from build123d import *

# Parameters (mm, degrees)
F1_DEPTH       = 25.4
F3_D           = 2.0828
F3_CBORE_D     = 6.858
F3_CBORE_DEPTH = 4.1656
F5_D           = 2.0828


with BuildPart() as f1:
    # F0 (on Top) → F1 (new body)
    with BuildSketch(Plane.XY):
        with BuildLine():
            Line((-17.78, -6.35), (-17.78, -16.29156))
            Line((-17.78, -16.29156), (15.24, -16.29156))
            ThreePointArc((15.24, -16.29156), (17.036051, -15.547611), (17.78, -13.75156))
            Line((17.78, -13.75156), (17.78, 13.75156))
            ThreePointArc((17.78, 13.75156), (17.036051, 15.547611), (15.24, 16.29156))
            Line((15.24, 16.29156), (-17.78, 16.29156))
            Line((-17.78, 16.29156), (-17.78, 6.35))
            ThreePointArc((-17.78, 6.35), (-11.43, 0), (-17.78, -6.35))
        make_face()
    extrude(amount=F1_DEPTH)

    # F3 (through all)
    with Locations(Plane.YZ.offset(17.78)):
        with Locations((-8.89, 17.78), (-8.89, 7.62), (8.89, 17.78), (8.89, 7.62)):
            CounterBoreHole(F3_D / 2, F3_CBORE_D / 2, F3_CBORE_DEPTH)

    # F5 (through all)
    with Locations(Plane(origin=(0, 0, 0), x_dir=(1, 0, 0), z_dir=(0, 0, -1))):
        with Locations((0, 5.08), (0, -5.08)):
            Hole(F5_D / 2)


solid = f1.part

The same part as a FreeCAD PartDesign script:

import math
import FreeCAD as App
import Part
import Sketcher
from FreeCAD import Vector
Q = App.Units.Quantity

doc = App.newDocument("Part")
body = doc.addObject("PartDesign::Body", "Body")

# Sketch on XY plane
sketch1 = body.newObject("Sketcher::SketchObject", "Sketch")
sketch1.AttachmentSupport = (doc.getObject("XY_Plane"), [""])
sketch1.MapMode = "FlatFace"
sketch1.addGeometry(Part.LineSegment(Vector(-17.8, -6.3, 0), Vector(-17.8, -16.3, 0)), False)
sketch1.addGeometry(Part.LineSegment(Vector(-17.8, -16.3, 0), Vector(15.2, -16.3, 0)), False)
sketch1.addGeometry(Part.ArcOfCircle(Part.Circle(Vector(15.2, -13.8, 0), Vector(0, 0, 1), 2.5), math.radians(-90), math.radians(0)), False)
sketch1.addGeometry(Part.LineSegment(Vector(17.8, -13.8, 0), Vector(17.8, 13.8, 0)), False)
sketch1.addGeometry(Part.ArcOfCircle(Part.Circle(Vector(15.2, 13.8, 0), Vector(0, 0, 1), 2.5), math.radians(0), math.radians(90)), False)
sketch1.addGeometry(Part.LineSegment(Vector(15.2, 16.3, 0), Vector(-17.8, 16.3, 0)), False)
sketch1.addGeometry(Part.LineSegment(Vector(-17.8, 16.3, 0), Vector(-17.8, 6.3, 0)), False)
sketch1.addGeometry(Part.ArcOfCircle(Part.Circle(Vector(-17.8, 0, 0), Vector(0, 0, 1), 6.3), math.radians(-90), math.radians(90)), False)
sketch1.addConstraint(Sketcher.Constraint("Coincident", 0, 2, 1, 1))
sketch1.addConstraint(Sketcher.Constraint("Tangent", 1, 2, 2, 1))
sketch1.addConstraint(Sketcher.Constraint("Tangent", 2, 2, 3, 1))
sketch1.addConstraint(Sketcher.Constraint("Tangent", 3, 2, 4, 1))
sketch1.addConstraint(Sketcher.Constraint("Tangent", 4, 2, 5, 1))
sketch1.addConstraint(Sketcher.Constraint("Coincident", 5, 2, 6, 1))
sketch1.addConstraint(Sketcher.Constraint("Coincident", 6, 2, 7, 2))
sketch1.addConstraint(Sketcher.Constraint("Coincident", 7, 1, 0, 1))
sketch1.addConstraint(Sketcher.Constraint("Vertical", 0))
sketch1.addConstraint(Sketcher.Constraint("Horizontal", 1))
sketch1.addConstraint(Sketcher.Constraint("Vertical", 3))
sketch1.addConstraint(Sketcher.Constraint("Horizontal", 5))
sketch1.addConstraint(Sketcher.Constraint("Vertical", 6))
sketch1.addConstraint(Sketcher.Constraint("Equal", 2, 4))
sketch1.addConstraint(Sketcher.Constraint("Symmetric", 0, 2, 5, 2, -1))
sketch1.addConstraint(Sketcher.Constraint("PointOnObject", 7, 3, -1))
sketch1.addConstraint(Sketcher.Constraint("Vertical", 7, 3, 0, 2))
sketch1.addConstraint(Sketcher.Constraint("Radius", 2, Q("0.1 in")))
sketch1.addConstraint(Sketcher.Constraint("Radius", 7, Q("0.25 in")))
sketch1.addConstraint(Sketcher.Constraint("DistanceX", 1, 1, 1, 2, Q("1.3 in")))
sketch1.addConstraint(Sketcher.Constraint("DistanceX", -1, 1, 2, 3, Q("0.6 in")))
sketch1.addConstraint(Sketcher.Constraint("DistanceY", 0, 2, 0, 1, Q("0.3914 in")))
pad1 = body.newObject("PartDesign::Pad", "Pad")
pad1.Profile = sketch1
pad1.Length = Q("1 in")

# Sketch on YZ plane
sketch2 = body.newObject("Sketcher::SketchObject", "Sketch001")
sketch2.AttachmentSupport = (doc.getObject("YZ_Plane"), [""])
sketch2.MapMode = "FlatFace"
sketch2.AttachmentOffset = App.Placement(Vector(0, 0, 0.7 * 25.4), App.Rotation())
sketch2.addGeometry(Part.Circle(Vector(-8.9, 17.8, 0), Vector(0, 0, 1), 1), False)
sketch2.addGeometry(Part.Circle(Vector(-8.9, 7.6, 0), Vector(0, 0, 1), 1), False)
sketch2.addGeometry(Part.Circle(Vector(8.9, 17.8, 0), Vector(0, 0, 1), 1), False)
sketch2.addGeometry(Part.Circle(Vector(8.9, 7.6, 0), Vector(0, 0, 1), 1), False)
sketch2.addConstraint(Sketcher.Constraint("Equal", 0, 1))
sketch2.addConstraint(Sketcher.Constraint("Equal", 1, 2))
sketch2.addConstraint(Sketcher.Constraint("Equal", 2, 3))
sketch2.addConstraint(Sketcher.Constraint("Symmetric", 0, 3, 2, 3, -2))
sketch2.addConstraint(Sketcher.Constraint("Symmetric", 1, 3, 3, 3, -2))
sketch2.addConstraint(Sketcher.Constraint("Vertical", 0, 3, 1, 3))
sketch2.addConstraint(Sketcher.Constraint("Diameter", 0, Q("0.082 in")))
sketch2.addConstraint(Sketcher.Constraint("DistanceY", -1, 1, 0, 3, Q("0.7 in")))
sketch2.addConstraint(Sketcher.Constraint("DistanceY", -1, 1, 1, 3, Q("0.3 in")))
sketch2.addConstraint(Sketcher.Constraint("DistanceX", 0, 3, 2, 3, Q("0.7 in")))
doc.recompute()
hole = body.newObject("PartDesign::Hole", "Hole")
hole.Profile = sketch2
hole.ThreadType = "None"
hole.Diameter = Q("0.082 in")
hole.DepthType = "ThroughAll"
hole.HoleCutType = "Counterbore"
hole.HoleCutDiameter = Q("0.27 in")
hole.HoleCutDepth = Q("0.164 in")

# Sketch on XY plane
sketch3 = body.newObject("Sketcher::SketchObject", "Sketch002")
sketch3.AttachmentSupport = (doc.getObject("XY_Plane"), [""])
sketch3.MapMode = "FlatFace"
sketch3.addGeometry(Part.Circle(Vector(0, -5.1, 0), Vector(0, 0, 1), 1), False)
sketch3.addGeometry(Part.Circle(Vector(0, 5.1, 0), Vector(0, 0, 1), 1), False)
sketch3.addConstraint(Sketcher.Constraint("Equal", 0, 1))
sketch3.addConstraint(Sketcher.Constraint("Symmetric", 0, 3, 1, 3, -1, 1))
sketch3.addConstraint(Sketcher.Constraint("PointOnObject", 0, 3, -2))
sketch3.addConstraint(Sketcher.Constraint("Diameter", 0, Q("0.082 in")))
sketch3.addConstraint(Sketcher.Constraint("DistanceY", 0, 3, -1, 1, Q("0.2 in")))
doc.recompute()
hole2 = body.newObject("PartDesign::Hole", "Hole001")
hole2.Profile = sketch3
hole2.ThreadType = "None"
hole2.Diameter = Q("0.082 in")
hole2.DepthType = "ThroughAll"
hole2.Reversed = True

doc.recompute()
